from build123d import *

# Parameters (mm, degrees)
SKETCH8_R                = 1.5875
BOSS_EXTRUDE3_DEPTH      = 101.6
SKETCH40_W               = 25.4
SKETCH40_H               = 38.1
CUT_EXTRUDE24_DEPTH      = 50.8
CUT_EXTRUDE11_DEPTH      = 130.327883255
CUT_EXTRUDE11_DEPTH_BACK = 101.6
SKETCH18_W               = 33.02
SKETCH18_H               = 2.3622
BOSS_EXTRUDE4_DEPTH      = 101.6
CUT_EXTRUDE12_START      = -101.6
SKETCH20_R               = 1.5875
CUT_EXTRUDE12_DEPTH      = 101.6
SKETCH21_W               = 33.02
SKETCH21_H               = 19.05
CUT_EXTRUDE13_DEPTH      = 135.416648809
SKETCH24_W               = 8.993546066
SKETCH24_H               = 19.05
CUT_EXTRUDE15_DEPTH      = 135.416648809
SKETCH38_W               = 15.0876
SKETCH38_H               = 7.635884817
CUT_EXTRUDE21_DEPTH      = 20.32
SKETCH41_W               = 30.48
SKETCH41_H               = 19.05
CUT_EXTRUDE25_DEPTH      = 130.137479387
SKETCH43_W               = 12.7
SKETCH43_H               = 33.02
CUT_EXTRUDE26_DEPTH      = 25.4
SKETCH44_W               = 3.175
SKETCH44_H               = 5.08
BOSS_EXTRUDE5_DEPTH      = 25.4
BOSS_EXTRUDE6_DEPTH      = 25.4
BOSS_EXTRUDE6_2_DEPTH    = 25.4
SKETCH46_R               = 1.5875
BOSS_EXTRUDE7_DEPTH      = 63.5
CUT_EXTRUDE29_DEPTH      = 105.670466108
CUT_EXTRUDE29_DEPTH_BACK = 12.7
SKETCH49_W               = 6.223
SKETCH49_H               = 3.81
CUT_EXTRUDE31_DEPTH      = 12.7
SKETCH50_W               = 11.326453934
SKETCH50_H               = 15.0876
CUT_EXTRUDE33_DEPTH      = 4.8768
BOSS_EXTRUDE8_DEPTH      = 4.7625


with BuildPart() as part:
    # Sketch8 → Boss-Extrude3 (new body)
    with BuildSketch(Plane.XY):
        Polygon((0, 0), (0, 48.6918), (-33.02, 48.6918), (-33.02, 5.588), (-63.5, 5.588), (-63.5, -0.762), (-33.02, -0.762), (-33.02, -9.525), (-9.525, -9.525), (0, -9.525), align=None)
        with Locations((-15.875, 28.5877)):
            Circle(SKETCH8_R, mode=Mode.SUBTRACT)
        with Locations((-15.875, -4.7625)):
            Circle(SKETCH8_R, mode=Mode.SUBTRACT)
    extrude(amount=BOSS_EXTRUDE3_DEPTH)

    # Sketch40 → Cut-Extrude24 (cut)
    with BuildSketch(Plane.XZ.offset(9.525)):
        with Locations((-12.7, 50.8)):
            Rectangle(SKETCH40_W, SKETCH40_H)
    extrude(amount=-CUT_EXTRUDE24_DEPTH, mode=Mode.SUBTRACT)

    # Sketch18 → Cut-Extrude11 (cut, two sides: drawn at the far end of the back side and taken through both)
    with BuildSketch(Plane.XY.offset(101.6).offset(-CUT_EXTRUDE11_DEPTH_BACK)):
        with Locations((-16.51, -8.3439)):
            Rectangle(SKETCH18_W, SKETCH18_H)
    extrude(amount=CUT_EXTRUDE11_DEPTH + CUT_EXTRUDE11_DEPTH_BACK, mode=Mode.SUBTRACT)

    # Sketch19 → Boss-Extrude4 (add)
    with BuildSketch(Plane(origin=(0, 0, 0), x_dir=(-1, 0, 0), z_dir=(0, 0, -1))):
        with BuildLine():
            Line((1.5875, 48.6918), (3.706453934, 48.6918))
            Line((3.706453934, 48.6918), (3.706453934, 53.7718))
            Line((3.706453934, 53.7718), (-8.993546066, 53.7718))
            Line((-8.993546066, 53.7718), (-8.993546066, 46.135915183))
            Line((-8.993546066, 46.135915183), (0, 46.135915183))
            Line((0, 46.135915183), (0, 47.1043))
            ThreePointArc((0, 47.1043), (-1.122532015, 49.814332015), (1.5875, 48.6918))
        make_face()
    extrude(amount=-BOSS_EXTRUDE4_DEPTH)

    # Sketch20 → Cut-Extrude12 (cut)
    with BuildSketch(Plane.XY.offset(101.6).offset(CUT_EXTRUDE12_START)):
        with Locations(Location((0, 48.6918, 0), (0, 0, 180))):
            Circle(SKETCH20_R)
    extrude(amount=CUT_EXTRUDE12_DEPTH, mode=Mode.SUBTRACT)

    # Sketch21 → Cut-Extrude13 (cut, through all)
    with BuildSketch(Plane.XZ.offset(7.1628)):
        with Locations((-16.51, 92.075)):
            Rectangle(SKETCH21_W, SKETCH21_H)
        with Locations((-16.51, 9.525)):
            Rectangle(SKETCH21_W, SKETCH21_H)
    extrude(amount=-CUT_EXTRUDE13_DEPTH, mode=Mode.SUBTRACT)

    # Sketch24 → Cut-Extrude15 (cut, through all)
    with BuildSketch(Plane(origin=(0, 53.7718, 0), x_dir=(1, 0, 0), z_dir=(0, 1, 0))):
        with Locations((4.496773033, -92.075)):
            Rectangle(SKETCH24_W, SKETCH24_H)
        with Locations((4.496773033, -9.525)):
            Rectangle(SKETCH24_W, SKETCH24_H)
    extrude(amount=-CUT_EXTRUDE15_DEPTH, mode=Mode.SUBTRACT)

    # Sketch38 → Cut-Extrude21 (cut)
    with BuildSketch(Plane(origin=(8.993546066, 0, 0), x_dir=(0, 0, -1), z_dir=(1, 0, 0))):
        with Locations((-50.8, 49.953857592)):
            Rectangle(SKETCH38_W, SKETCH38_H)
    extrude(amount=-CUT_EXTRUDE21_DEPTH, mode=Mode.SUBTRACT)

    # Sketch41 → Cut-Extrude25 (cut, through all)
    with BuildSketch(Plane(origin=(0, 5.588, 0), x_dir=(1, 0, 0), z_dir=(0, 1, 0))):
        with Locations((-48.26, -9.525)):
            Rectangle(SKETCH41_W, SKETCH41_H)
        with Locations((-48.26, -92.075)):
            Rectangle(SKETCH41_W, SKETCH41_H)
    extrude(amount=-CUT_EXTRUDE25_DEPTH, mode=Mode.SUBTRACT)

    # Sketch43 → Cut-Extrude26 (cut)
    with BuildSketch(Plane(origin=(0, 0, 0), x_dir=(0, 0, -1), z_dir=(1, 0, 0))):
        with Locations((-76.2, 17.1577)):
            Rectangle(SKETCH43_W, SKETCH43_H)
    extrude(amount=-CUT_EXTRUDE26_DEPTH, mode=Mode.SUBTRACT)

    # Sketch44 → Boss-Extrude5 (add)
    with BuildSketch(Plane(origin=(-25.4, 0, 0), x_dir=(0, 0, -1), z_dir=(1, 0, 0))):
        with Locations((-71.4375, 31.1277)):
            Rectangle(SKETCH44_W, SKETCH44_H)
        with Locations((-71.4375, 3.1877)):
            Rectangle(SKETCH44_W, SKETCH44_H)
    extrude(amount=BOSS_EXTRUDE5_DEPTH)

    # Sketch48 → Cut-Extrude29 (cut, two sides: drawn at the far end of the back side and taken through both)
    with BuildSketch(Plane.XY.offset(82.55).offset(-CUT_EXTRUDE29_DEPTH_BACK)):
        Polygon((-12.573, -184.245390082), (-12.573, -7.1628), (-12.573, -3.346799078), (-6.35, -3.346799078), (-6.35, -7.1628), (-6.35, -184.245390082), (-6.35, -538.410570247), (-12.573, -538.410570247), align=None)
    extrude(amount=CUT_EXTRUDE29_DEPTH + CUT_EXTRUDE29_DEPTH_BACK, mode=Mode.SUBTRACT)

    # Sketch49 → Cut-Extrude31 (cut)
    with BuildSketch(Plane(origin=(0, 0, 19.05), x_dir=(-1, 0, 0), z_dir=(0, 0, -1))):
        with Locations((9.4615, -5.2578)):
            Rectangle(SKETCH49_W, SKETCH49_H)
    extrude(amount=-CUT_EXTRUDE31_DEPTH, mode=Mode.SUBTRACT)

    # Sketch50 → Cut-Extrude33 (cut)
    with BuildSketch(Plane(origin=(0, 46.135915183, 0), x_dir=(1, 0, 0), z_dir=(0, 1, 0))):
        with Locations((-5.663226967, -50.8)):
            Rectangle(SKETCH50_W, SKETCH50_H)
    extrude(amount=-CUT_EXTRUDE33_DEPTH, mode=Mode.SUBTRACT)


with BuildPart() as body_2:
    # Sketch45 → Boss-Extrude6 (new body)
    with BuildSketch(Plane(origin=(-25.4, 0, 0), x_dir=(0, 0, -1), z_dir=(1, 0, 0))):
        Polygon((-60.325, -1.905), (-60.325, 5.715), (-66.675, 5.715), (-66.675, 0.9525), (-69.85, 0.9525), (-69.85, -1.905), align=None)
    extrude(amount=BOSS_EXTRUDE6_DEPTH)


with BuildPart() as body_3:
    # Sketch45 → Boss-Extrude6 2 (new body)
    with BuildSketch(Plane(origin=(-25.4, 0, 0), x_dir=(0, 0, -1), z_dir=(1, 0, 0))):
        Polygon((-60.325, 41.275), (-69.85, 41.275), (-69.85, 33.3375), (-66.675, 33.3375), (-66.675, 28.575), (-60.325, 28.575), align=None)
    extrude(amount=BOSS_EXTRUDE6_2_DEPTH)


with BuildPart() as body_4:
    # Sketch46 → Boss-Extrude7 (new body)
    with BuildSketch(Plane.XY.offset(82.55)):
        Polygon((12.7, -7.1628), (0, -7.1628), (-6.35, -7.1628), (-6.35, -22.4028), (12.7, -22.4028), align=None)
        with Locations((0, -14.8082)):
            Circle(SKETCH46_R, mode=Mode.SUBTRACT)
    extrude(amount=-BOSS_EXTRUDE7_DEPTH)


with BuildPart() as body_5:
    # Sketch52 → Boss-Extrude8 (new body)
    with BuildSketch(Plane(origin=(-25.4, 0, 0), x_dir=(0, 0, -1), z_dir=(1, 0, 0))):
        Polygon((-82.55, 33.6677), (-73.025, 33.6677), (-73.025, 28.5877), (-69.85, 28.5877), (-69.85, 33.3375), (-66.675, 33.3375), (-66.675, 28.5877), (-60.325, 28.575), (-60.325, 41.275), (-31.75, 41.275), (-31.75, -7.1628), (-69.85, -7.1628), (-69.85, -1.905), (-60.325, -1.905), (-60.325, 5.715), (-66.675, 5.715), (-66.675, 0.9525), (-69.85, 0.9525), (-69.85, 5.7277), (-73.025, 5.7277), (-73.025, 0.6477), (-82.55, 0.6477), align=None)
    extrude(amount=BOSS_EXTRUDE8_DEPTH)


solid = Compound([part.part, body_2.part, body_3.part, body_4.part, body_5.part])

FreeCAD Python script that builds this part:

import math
import FreeCAD as App
import Part
import Sketcher

V = App.Vector
Q = App.Units.Quantity


def add_polygon(sketch, points):
    """Adds a closed chain of lines whose ends are joined by coincident constraints."""
    first, n = sketch.GeometryCount, len(points)
    for a, b in zip(points, points[1:] + points[:1]):
        sketch.addGeometry(Part.LineSegment(App.Vector(*a, 0), App.Vector(*b, 0)), False)
    for i in range(n):
        sketch.addConstraint(Sketcher.Constraint("Coincident", first + i, 2, first + (i + 1) % n, 1))

doc = App.newDocument("Part")
body = doc.addObject("PartDesign::Body", "Body")

# Sketch on XY plane
sketch1 = body.newObject("Sketcher::SketchObject", "Sketch")
sketch1.AttachmentSupport = (doc.getObject("XY_Plane"), [""])
sketch1.MapMode = "FlatFace"
add_polygon(sketch1, [(0, 48.6918), (-33.02, 48.6918), (-33.02, 5.588), (-63.5, 5.588), (-63.5, -0.762), (-33.02, -0.762), (-33.02, -9.525), (0, -9.525)])  # lines 0-7
sketch1.addGeometry(Part.Circle(V(-15.875, -4.7625, 0), V(0, 0, 1), 1.5875), False)  # 8
sketch1.addGeometry(Part.Circle(V(-15.875, 28.5877, 0), V(0, 0, 1), 1.5875), False)  # 9
sketch1.addConstraint(Sketcher.Constraint("Horizontal", 0))
sketch1.addConstraint(Sketcher.Constraint("Vertical", 1))
sketch1.addConstraint(Sketcher.Constraint("Horizontal", 2))
sketch1.addConstraint(Sketcher.Constraint("Vertical", 3))
sketch1.addConstraint(Sketcher.Constraint("Horizontal", 4))
sketch1.addConstraint(Sketcher.Constraint("Vertical", 5))
sketch1.addConstraint(Sketcher.Constraint("Horizontal", 6))
sketch1.addConstraint(Sketcher.Constraint("Vertical", 7))
sketch1.addConstraint(Sketcher.Constraint("Equal", 8, 9))
sketch1.addConstraint(Sketcher.Constraint("PointOnObject", 6, 2, -2))
sketch1.addConstraint(Sketcher.Constraint("Vertical", 8, 3, 9, 3))
sketch1.addConstraint(Sketcher.Constraint("Vertical", 1, 2, 4, 2))
sketch1.addConstraint(Sketcher.Constraint("Diameter", 8, Q("0.125 in")))
sketch1.addConstraint(Sketcher.Constraint("DistanceX", 0, 2, 0, 1, Q("1.3 in")))
sketch1.addConstraint(Sketcher.Constraint("DistanceX", 2, 2, 2, 1, Q("1.2 in")))
sketch1.addConstraint(Sketcher.Constraint("DistanceY", 3, 2, 3, 1, Q("0.25 in")))
sketch1.addConstraint(Sketcher.Constraint("DistanceY", 1, 2, 1, 1, Q("1.697 in")))
sketch1.addConstraint(Sketcher.Constraint("DistanceY", 5, 2, 5, 1, Q("0.345 in")))
sketch1.addConstraint(Sketcher.Constraint("DistanceY", -1, 1, 1, 2, Q("0.22 in")))
sketch1.addConstraint(Sketcher.Constraint("DistanceX", 8, 3, -1, 1, Q("0.625 in")))
sketch1.addConstraint(Sketcher.Constraint("DistanceY", 8, 3, -1, 1, Q("0.1875 in")))
sketch1.addConstraint(Sketcher.Constraint("DistanceY", 8, 3, 9, 3, Q("1.313 in")))
pad1 = body.newObject("PartDesign::Pad", "Pad")
pad1.Profile = sketch1
pad1.Length = Q("4 in")

# Sketch on XZ plane
sketch2 = body.newObject("Sketcher::SketchObject", "Sketch001")
sketch2.AttachmentSupport = (doc.getObject("XZ_Plane"), [""])
sketch2.MapMode = "FlatFace"
sketch2.AttachmentOffset = App.Placement(V(0, 0, 0.375 * 25.4), App.Rotation())
add_polygon(sketch2, [(-25.4, 69.85), (-25.4, 31.75), (0, 31.75), (0, 69.85)])  # lines 0-3
sketch2.addConstraint(Sketcher.Constraint("Vertical", 0))
sketch2.addConstraint(Sketcher.Constraint("Horizontal", 1))
sketch2.addConstraint(Sketcher.Constraint("Vertical", 2))
sketch2.addConstraint(Sketcher.Constraint("Horizontal", 3))
sketch2.addConstraint(Sketcher.Constraint("PointOnObject", 1, 2, -2))
sketch2.addConstraint(Sketcher.Constraint("DistanceX", 1, 1, 1, 2, Q("1 in")))
sketch2.addConstraint(Sketcher.Constraint("DistanceY", 0, 2, 0, 1, Q("1.5 in")))
sketch2.addConstraint(Sketcher.Constraint("DistanceY", -1, 1, 0, 2, Q("1.25 in")))
pocket1 = body.newObject("PartDesign::Pocket", "Pocket")
pocket1.Profile = sketch2
pocket1.Length = Q("2 in")

# Sketch on XY plane
sketch3 = body.newObject("Sketcher::SketchObject", "Sketch002")
sketch3.AttachmentSupport = (doc.getObject("XY_Plane"), [""])
sketch3.MapMode = "FlatFace"
sketch3.AttachmentOffset = App.Placement(V(0, 0, 4 * 25.4), App.Rotation())
add_polygon(sketch3, [(-33.02, -7.1628), (-33.02, -9.525), (0, -9.525), (0, -7.1628)])  # lines 0-3
sketch3.addConstraint(Sketcher.Constraint("Vertical", 0))
sketch3.addConstraint(Sketcher.Constraint("Horizontal", 1))
sketch3.addConstraint(Sketcher.Constraint("Vertical", 2))
sketch3.addConstraint(Sketcher.Constraint("Horizontal", 3))
sketch3.addConstraint(Sketcher.Constraint("PointOnObject", 1, 2, -2))
sketch3.addConstraint(Sketcher.Constraint("DistanceX", 1, 1, 1, 2, Q("1.3 in")))
sketch3.addConstraint(Sketcher.Constraint("DistanceY", 0, 2, 0, 1, Q("0.093 in")))
sketch3.addConstraint(Sketcher.Constraint("DistanceY", 0, 2, -1, 1, Q("0.375 in")))
pocket2 = body.newObject("PartDesign::Pocket", "Pocket001")
pocket2.Profile = sketch3
pocket2.Type = "ThroughAll"
pocket2.Midplane = True

# Sketch on XY plane
sketch4 = body.newObject("Sketcher::SketchObject", "Sketch003")
sketch4.AttachmentSupport = (doc.getObject("XY_Plane"), [""])
sketch4.MapMode = "FlatFace"
sketch4.addGeometry(Part.LineSegment(V(-1.5875, 48.6918, 0), V(-3.706454, 48.6918, 0)), False)
sketch4.addGeometry(Part.LineSegment(V(-3.706454, 48.6918, 0), V(-3.706454, 53.7718, 0)), False)
sketch4.addGeometry(Part.LineSegment(V(-3.706454, 53.7718, 0), V(8.993546, 53.7718, 0)), False)
sketch4.addGeometry(Part.LineSegment(V(8.993546, 53.7718, 0), V(8.993546, 46.135915, 0)), False)
sketch4.addGeometry(Part.LineSegment(V(8.993546, 46.135915, 0), V(0, 46.135915, 0)), False)
sketch4.addGeometry(Part.LineSegment(V(0, 46.135915, 0), V(0, 47.1043, 0)), False)
sketch4.addGeometry(Part.ArcOfCircle(Part.Circle(V(0, 48.6918, 0), V(0, 0, 1), 1.5875), math.radians(-90), math.radians(180)), False)
sketch4.addConstraint(Sketcher.Constraint("Coincident", 0, 2, 1, 1))
sketch4.addConstraint(Sketcher.Constraint("Coincident", 1, 2, 2, 1))
sketch4.addConstraint(Sketcher.Constraint("Coincident", 2, 2, 3, 1))
sketch4.addConstraint(Sketcher.Constraint("Coincident", 3, 2, 4, 1))
sketch4.addConstraint(Sketcher.Constraint("Coincident", 4, 2, 5, 1))
sketch4.addConstraint(Sketcher.Constraint("Coincident", 5, 2, 6, 1))
sketch4.addConstraint(Sketcher.Constraint("Coincident", 6, 2, 0, 1))
sketch4.addConstraint(Sketcher.Constraint("Horizontal", 0))
sketch4.addConstraint(Sketcher.Constraint("Vertical", 1))
sketch4.addConstraint(Sketcher.Constraint("Horizontal", 2))
sketch4.addConstraint(Sketcher.Constraint("Vertical", 3))
sketch4.addConstraint(Sketcher.Constraint("Horizontal", 4))
sketch4.addConstraint(Sketcher.Constraint("Vertical", 5))
sketch4.addConstraint(Sketcher.Constraint("PointOnObject", 6, 3, -2))
sketch4.addConstraint(Sketcher.Constraint("PointOnObject", 4, 2, -2))
sketch4.addConstraint(Sketcher.Constraint("Horizontal", 6, 3, 0, 2))
sketch4.addConstraint(Sketcher.Constraint("DistanceX", 2, 1, 2, 2, Q("0.5 in")))
sketch4.addConstraint(Sketcher.Constraint("DistanceY", 1, 1, 1, 2, Q("0.2 in")))
sketch4.addConstraint(Sketcher.Constraint("Radius", 6, Q("0.0625 in")))
sketch4.addConstraint(Sketcher.Constraint("DistanceY", -1, 1, 6, 3, Q("1.917 in")))
sketch4.addConstraint(Sketcher.Constraint("DistanceX", 0, 2, 0, 1, 2.118954))
sketch4.addConstraint(Sketcher.Constraint("DistanceY", 3, 2, 3, 1, 7.635885))
pad2 = body.newObject("PartDesign::Pad", "Pad001")
pad2.Profile = sketch4
pad2.Length = Q("4 in")

# Sketch on XY plane
sketch5 = body.newObject("Sketcher::SketchObject", "Sketch004")
sketch5.AttachmentSupport = (doc.getObject("XY_Plane"), [""])
sketch5.MapMode = "FlatFace"
sketch5.addGeometry(Part.Circle(V(0, 48.6918, 0), V(0, 0, 1), 1.5875), False)
sketch5.addConstraint(Sketcher.Constraint("PointOnObject", 0, 3, -2))
sketch5.addConstraint(Sketcher.Constraint("Diameter", 0, Q("0.125 in")))
sketch5.addConstraint(Sketcher.Constraint("DistanceY", -1, 1, 0, 3, Q("1.917 in")))
pocket3 = body.newObject("PartDesign::Pocket", "Pocket002")
pocket3.Profile = sketch5
pocket3.Length = Q("4 in")
pocket3.Reversed = True

# Sketch on XZ plane
sketch6 = body.newObject("Sketcher::SketchObject", "Sketch005")
sketch6.AttachmentSupport = (doc.getObject("XZ_Plane"), [""])
sketch6.MapMode = "FlatFace"
sketch6.AttachmentOffset = App.Placement(V(0, 0, 0.282 * 25.4), App.Rotation())
add_polygon(sketch6, [(-33.02, 101.6), (-33.02, 82.55), (0, 82.55), (0, 101.6)])  # lines 0-3
add_polygon(sketch6, [(-33.02, 19.05), (-33.02, 0), (0, 0), (0, 19.05)])  # lines 4-7
sketch6.addConstraint(Sketcher.Constraint("Vertical", 0))
sketch6.addConstraint(Sketcher.Constraint("Horizontal", 1))
sketch6.addConstraint(Sketcher.Constraint("Vertical", 2))
sketch6.addConstraint(Sketcher.Constraint("Horizontal", 3))
sketch6.addConstraint(Sketcher.Constraint("Vertical", 4))
sketch6.addConstraint(Sketcher.Constraint("Horizontal", 5))
sketch6.addConstraint(Sketcher.Constraint("Vertical", 6))
sketch6.addConstraint(Sketcher.Constraint("Horizontal", 7))
sketch6.addConstraint(Sketcher.Constraint("Coincident", 5, 2, -1, 1))
sketch6.addConstraint(Sketcher.Constraint("PointOnObject", 1, 2, -2))
sketch6.addConstraint(Sketcher.Constraint("Vertical", 3, 2, 4, 2))
sketch6.addConstraint(Sketcher.Constraint("Equal", 2, 4))
sketch6.addConstraint(Sketcher.Constraint("DistanceX", 1, 1, 1, 2, Q("1.3 in")))
sketch6.addConstraint(Sketcher.Constraint("DistanceY", -1, 1, 2, 2, Q("4 in")))
sketch6.addConstraint(Sketcher.Constraint("DistanceY", 0, 2, 0, 1, Q("0.75 in")))
pocket4 = body.newObject("PartDesign::Pocket", "Pocket003")
pocket4.Profile = sketch6
pocket4.Type = "ThroughAll"

# Sketch on XZ plane
sketch7 = body.newObject("Sketcher::SketchObject", "Sketch006")
sketch7.AttachmentSupport = (doc.getObject("XZ_Plane"), [""])
sketch7.MapMode = "FlatFace"
sketch7.AttachmentOffset = App.Placement(V(0, 0, -2.117 * 25.4), App.Rotation())
add_polygon(sketch7, [(0, 82.55), (0, 101.6), (8.993546, 101.6), (8.993546, 82.55)])  # lines 0-3
add_polygon(sketch7, [(0, 0), (0, 19.05), (8.993546, 19.05), (8.993546, 0)])  # lines 4-7
sketch7.addConstraint(Sketcher.Constraint("Vertical", 0))
sketch7.addConstraint(Sketcher.Constraint("Horizontal", 1))
sketch7.addConstraint(Sketcher.Constraint("Vertical", 2))
sketch7.addConstraint(Sketcher.Constraint("Horizontal", 3))
sketch7.addConstraint(Sketcher.Constraint("Vertical", 4))
sketch7.addConstraint(Sketcher.Constraint("Horizontal", 5))
sketch7.addConstraint(Sketcher.Constraint("Vertical", 6))
sketch7.addConstraint(Sketcher.Constraint("Horizontal", 7))
sketch7.addConstraint(Sketcher.Constraint("Coincident", 7, 2, -1, 1))
sketch7.addConstraint(Sketcher.Constraint("PointOnObject", 0, 2, -2))
sketch7.addConstraint(Sketcher.Constraint("Vertical", 2, 2, 5, 2))
sketch7.addConstraint(Sketcher.Constraint("Equal", 2, 4))
sketch7.addConstraint(Sketcher.Constraint("DistanceY", -1, 1, 0, 2, Q("4 in")))
sketch7.addConstraint(Sketcher.Constraint("DistanceY", 0, 1, 0, 2, Q("0.75 in")))
sketch7.addConstraint(Sketcher.Constraint("DistanceX", 1, 1, 1, 2, 8.993546))
pocket5 = body.newObject("PartDesign::Pocket", "Pocket004")
pocket5.Profile = sketch7
pocket5.Type = "ThroughAll"
pocket5.Reversed = True

# Sketch on YZ plane
sketch8 = body.newObject("Sketcher::SketchObject", "Sketch007")
sketch8.AttachmentSupport = (doc.getObject("YZ_Plane"), [""])
sketch8.MapMode = "FlatFace"
sketch8.AttachmentOffset = App.Placement(V(0, 0, 8.993546), App.Rotation())
add_polygon(sketch8, [(53.7718, 58.3438), (46.135915, 58.3438), (46.135915, 43.2562), (53.7718, 43.2562)])  # lines 0-3
sketch8.addConstraint(Sketcher.Constraint("Horizontal", 0))
sketch8.addConstraint(Sketcher.Constraint("Vertical", 1))
sketch8.addConstraint(Sketcher.Constraint("Horizontal", 2))
sketch8.addConstraint(Sketcher.Constraint("Vertical", 3))
sketch8.addConstraint(Sketcher.Constraint("DistanceY", 1, 2, 1, 1, Q("0.594 in")))
sketch8.addConstraint(Sketcher.Constraint("DistanceY", -1, 1, 0, 2, Q("2.297 in")))
sketch8.addConstraint(Sketcher.Constraint("DistanceX", -1, 1, 2, 2, Q("2.117 in")))
sketch8.addConstraint(Sketcher.Constraint("DistanceX", 0, 2, 0, 1, 7.635885))
pocket6 = body.newObject("PartDesign::Pocket", "Pocket005")
pocket6.Profile = sketch8
pocket6.Length = Q("0.8 in")

# Sketch on XZ plane
sketch9 = body.newObject("Sketcher::SketchObject", "Sketch008")
sketch9.AttachmentSupport = (doc.getObject("XZ_Plane"), [""])
sketch9.MapMode = "FlatFace"
sketch9.AttachmentOffset = App.Placement(V(0, 0, -0.22 * 25.4), App.Rotation())
add_polygon(sketch9, [(-63.5, 0), (-63.5, 19.05), (-33.02, 19.05), (-33.02, 0)])  # lines 0-3
add_polygon(sketch9, [(-63.5, 82.55), (-63.5, 101.6), (-33.02, 101.6), (-33.02, 82.55)])  # lines 4-7
sketch9.addConstraint(Sketcher.Constraint("Vertical", 0))
sketch9.addConstraint(Sketcher.Constraint("Horizontal", 1))
sketch9.addConstraint(Sketcher.Constraint("Vertical", 2))
sketch9.addConstraint(Sketcher.Constraint("Horizontal", 3))
sketch9.addConstraint(Sketcher.Constraint("Vertical", 4))
sketch9.addConstraint(Sketcher.Constraint("Horizontal", 5))
sketch9.addConstraint(Sketcher.Constraint("Vertical", 6))
sketch9.addConstraint(Sketcher.Constraint("Horizontal", 7))
sketch9.addConstraint(Sketcher.Constraint("PointOnObject", 2, 2, -1))
sketch9.addConstraint(Sketcher.Constraint("Vertical", 3, 2, 4, 2))
sketch9.addConstraint(Sketcher.Constraint("Vertical", 2, 2, 5, 2))
sketch9.addConstraint(Sketcher.Constraint("Equal", 2, 4))
sketch9.addConstraint(Sketcher.Constraint("DistanceX", 1, 1, 1, 2, Q("1.2 in")))
sketch9.addConstraint(Sketcher.Constraint("DistanceY", -1, 1, 4, 2, Q("4 in")))
sketch9.addConstraint(Sketcher.Constraint("DistanceY", 0, 1, 0, 2, Q("0.75 in")))
sketch9.addConstraint(Sketcher.Constraint("DistanceX", 0, 2, -1, 1, Q("2.5 in")))
pocket7 = body.newObject("PartDesign::Pocket", "Pocket006")
pocket7.Profile = sketch9
pocket7.Type = "ThroughAll"
pocket7.Reversed = True

# Sketch on YZ plane
sketch10 = body.newObject("Sketcher::SketchObject", "Sketch009")
sketch10.AttachmentSupport = (doc.getObject("YZ_Plane"), [""])
sketch10.MapMode = "FlatFace"
add_polygon(sketch10, [(33.6677, 82.55), (0.6477, 82.55), (0.6477, 69.85), (33.6677, 69.85)])  # lines 0-3
sketch10.addConstraint(Sketcher.Constraint("Horizontal", 0))
sketch10.addConstraint(Sketcher.Constraint("Vertical", 1))
sketch10.addConstraint(Sketcher.Constraint("Horizontal", 2))
sketch10.addConstraint(Sketcher.Constraint("Vertical", 3))
sketch10.addConstraint(Sketcher.Constraint("DistanceX", 0, 2, 0, 1, Q("1.3 in")))
sketch10.addConstraint(Sketcher.Constraint("DistanceY", 1, 2, 1, 1, Q("0.5 in")))
sketch10.addConstraint(Sketcher.Constraint("DistanceY", -1, 1, 0, 2, Q("3.25 in")))
sketch10.addConstraint(Sketcher.Constraint("DistanceX", -1, 1, 0, 2, Q("0.0255 in")))
pocket8 = body.newObject("PartDesign::Pocket", "Pocket007")
pocket8.Profile = sketch10
pocket8.Length = Q("1 in")

# Sketch on YZ plane
sketch11 = body.newObject("Sketcher::SketchObject", "Sketch010")
sketch11.AttachmentSupport = (doc.getObject("YZ_Plane"), [""])
sketch11.MapMode = "FlatFace"
sketch11.AttachmentOffset = App.Placement(V(0, 0, -1 * 25.4), App.Rotation())
add_polygon(sketch11, [(33.6677, 73.025), (28.5877, 73.025), (28.5877, 69.85), (33.6677, 69.85)])  # lines 0-3
add_polygon(sketch11, [(5.7277, 73.025), (0.6477, 73.025), (0.6477, 69.85), (5.7277, 69.85)])  # lines 4-7
sketch11.addConstraint(Sketcher.Constraint("Horizontal", 0))
sketch11.addConstraint(Sketcher.Constraint("Vertical", 1))
sketch11.addConstraint(Sketcher.Constraint("Horizontal", 2))
sketch11.addConstraint(Sketcher.Constraint("Vertical", 3))
sketch11.addConstraint(Sketcher.Constraint("Horizontal", 4))
sketch11.addConstraint(Sketcher.Constraint("Vertical", 5))
sketch11.addConstraint(Sketcher.Constraint("Horizontal", 6))
sketch11.addConstraint(Sketcher.Constraint("Vertical", 7))
sketch11.addConstraint(Sketcher.Constraint("Horizontal", 3, 2, 4, 2))
sketch11.addConstraint(Sketcher.Constraint("Horizontal", 2, 2, 5, 2))
sketch11.addConstraint(Sketcher.Constraint("Equal", 2, 4))
sketch11.addConstraint(Sketcher.Constraint("DistanceX", 0, 2, 0, 1, Q("0.2 in")))
sketch11.addConstraint(Sketcher.Constraint("DistanceX", 4, 2, 0, 2, Q("1.1 in")))
sketch11.addConstraint(Sketcher.Constraint("DistanceY", 1, 2, 1, 1, Q("0.125 in")))
sketch11.addConstraint(Sketcher.Constraint("DistanceY", -1, 1, 1, 2, Q("2.75 in")))
sketch11.addConstraint(Sketcher.Constraint("DistanceX", -1, 1, 0, 2, Q("1.1255 in")))
pad3 = body.newObject("PartDesign::Pad", "Pad002")
pad3.Profile = sketch11
pad3.Length = Q("1 in")

# Sketch on XY plane
sketch12 = body.newObject("Sketcher::SketchObject", "Sketch011")
sketch12.AttachmentSupport = (doc.getObject("XY_Plane"), [""])
sketch12.MapMode = "FlatFace"
sketch12.AttachmentOffset = App.Placement(V(0, 0, 3.25 * 25.4), App.Rotation())
add_polygon(sketch12, [(-12.573, -3.346799), (-12.573, -538.41057), (-6.35, -538.41057), (-6.35, -3.346799)])  # lines 0-3
sketch12.addConstraint(Sketcher.Constraint("Vertical", 0))
sketch12.addConstraint(Sketcher.Constraint("Horizontal", 1))
sketch12.addConstraint(Sketcher.Constraint("Vertical", 2))
sketch12.addConstraint(Sketcher.Constraint("Horizontal", 3))
sketch12.addConstraint(Sketcher.Constraint("DistanceX", 1, 1, 1, 2, Q("0.245 in")))
sketch12.addConstraint(Sketcher.Constraint("DistanceX", 1, 2, -1, 1, Q("0.25 in")))
sketch12.addConstraint(Sketcher.Constraint("DistanceY", 0, 2, 0, 1, 535.063771))
sketch12.addConstraint(Sketcher.Constraint("DistanceY", 2, 2, -1, 1, 3.346799))
pocket9 = body.newObject("PartDesign::Pocket", "Pocket008")
pocket9.Profile = sketch12
pocket9.Type = "TwoLengths"
pocket9.Length = 105.670466
pocket9.Length2 = Q("0.5 in")
pocket9.Reversed = True

# Sketch on XY plane
sketch13 = body.newObject("Sketcher::SketchObject", "Sketch012")
sketch13.AttachmentSupport = (doc.getObject("XY_Plane"), [""])
sketch13.MapMode = "FlatFace"
sketch13.AttachmentOffset = App.Placement(V(0, 0, 0.75 * 25.4), App.Rotation())
add_polygon(sketch13, [(-6.35, -3.3528), (-6.35, -7.1628), (-12.573, -7.1628), (-12.573, -3.3528)])  # lines 0-3
sketch13.addConstraint(Sketcher.Constraint("Vertical", 0))
sketch13.addConstraint(Sketcher.Constraint("Horizontal", 1))
sketch13.addConstraint(Sketcher.Constraint("Vertical", 2))
sketch13.addConstraint(Sketcher.Constraint("Horizontal", 3))
sketch13.addConstraint(Sketcher.Constraint("DistanceY", 0, 2, 0, 1, Q("0.15 in")))
sketch13.addConstraint(Sketcher.Constraint("DistanceX", 1, 2, 1, 1, Q("0.245 in")))
sketch13.addConstraint(Sketcher.Constraint("DistanceX", 0, 2, -1, 1, Q("0.25 in")))
sketch13.addConstraint(Sketcher.Constraint("DistanceY", 0, 2, -1, 1, Q("0.282 in")))
pocket10 = body.newObject("PartDesign::Pocket", "Pocket009")
pocket10.Profile = sketch13
pocket10.Length = Q("0.5 in")
pocket10.Reversed = True

# Sketch on XZ plane
sketch14 = body.newObject("Sketcher::SketchObject", "Sketch013")
sketch14.AttachmentSupport = (doc.getObject("XZ_Plane"), [""])
sketch14.MapMode = "FlatFace"
sketch14.AttachmentOffset = App.Placement(V(0, 0, -46.135915), App.Rotation())
add_polygon(sketch14, [(-11.326454, 43.2562), (-11.326454, 58.3438), (0, 58.3438), (0, 43.2562)])  # lines 0-3
sketch14.addConstraint(Sketcher.Constraint("Vertical", 0))
sketch14.addConstraint(Sketcher.Constraint("Horizontal", 1))
sketch14.addConstraint(Sketcher.Constraint("Vertical", 2))
sketch14.addConstraint(Sketcher.Constraint("Horizontal", 3))
sketch14.addConstraint(Sketcher.Constraint("PointOnObject", 1, 2, -2))
sketch14.addConstraint(Sketcher.Constraint("DistanceY", 0, 1, 0, 2, Q("0.594 in")))
sketch14.addConstraint(Sketcher.Constraint("DistanceY", -1, 1, 0, 2, Q("2.297 in")))
sketch14.addConstraint(Sketcher.Constraint("DistanceX", 1, 1, 1, 2, 11.326454))
pocket11 = body.newObject("PartDesign::Pocket", "Pocket010")
pocket11.Profile = sketch14
pocket11.Length = Q("0.192 in")
pocket11.Reversed = True
body2 = doc.addObject("PartDesign::Body", "Body001")

# Sketch on YZ plane
sketch15 = body2.newObject("Sketcher::SketchObject", "Sketch014")
sketch15.AttachmentSupport = (doc.getObject("YZ_Plane001"), [""])
sketch15.MapMode = "FlatFace"
sketch15.AttachmentOffset = App.Placement(V(0, 0, -1 * 25.4), App.Rotation())
add_polygon(sketch15, [(-1.905, 60.325), (5.715, 60.325), (5.715, 66.675), (0.9525, 66.675), (0.9525, 69.85), (-1.905, 69.85)])  # lines 0-5
sketch15.addConstraint(Sketcher.Constraint("Horizontal", 0))
sketch15.addConstraint(Sketcher.Constraint("Vertical", 1))
sketch15.addConstraint(Sketcher.Constraint("Horizontal", 2))
sketch15.addConstraint(Sketcher.Constraint("Vertical", 3))
sketch15.addConstraint(Sketcher.Constraint("Horizontal", 4))
sketch15.addConstraint(Sketcher.Constraint("Vertical", 5))
sketch15.addConstraint(Sketcher.Constraint("DistanceX", 0, 1, 0, 2, Q("0.3 in")))
sketch15.addConstraint(Sketcher.Constraint("DistanceY", 1, 1, 1, 2, Q("0.25 in")))
sketch15.addConstraint(Sketcher.Constraint("DistanceX", 2, 2, 2, 1, Q("0.1875 in")))
sketch15.addConstraint(Sketcher.Constraint("DistanceY", 3, 1, 3, 2, Q("0.125 in")))
sketch15.addConstraint(Sketcher.Constraint("DistanceY", -1, 1, 3, 2, Q("2.75 in")))
sketch15.addConstraint(Sketcher.Constraint("DistanceX", -1, 1, 0, 2, Q("0.225 in")))
pad4 = body2.newObject("PartDesign::Pad", "Pad003")
pad4.Profile = sketch15
pad4.Length = Q("1 in")
body3 = doc.addObject("PartDesign::Body", "Body002")

# Sketch on YZ plane
sketch16 = body3.newObject("Sketcher::SketchObject", "Sketch015")
sketch16.AttachmentSupport = (doc.getObject("YZ_Plane002"), [""])
sketch16.MapMode = "FlatFace"
sketch16.AttachmentOffset = App.Placement(V(0, 0, -1 * 25.4), App.Rotation())
add_polygon(sketch16, [(41.275, 60.325), (41.275, 69.85), (33.3375, 69.85), (33.3375, 66.675), (28.575, 66.675), (28.575, 60.325)])  # lines 0-5
sketch16.addConstraint(Sketcher.Constraint("Vertical", 0))
sketch16.addConstraint(Sketcher.Constraint("Horizontal", 1))
sketch16.addConstraint(Sketcher.Constraint("Vertical", 2))
sketch16.addConstraint(Sketcher.Constraint("Horizontal", 3))
sketch16.addConstraint(Sketcher.Constraint("Vertical", 4))
sketch16.addConstraint(Sketcher.Constraint("Horizontal", 5))
sketch16.addConstraint(Sketcher.Constraint("DistanceX", 5, 1, 5, 2, Q("0.5 in")))
sketch16.addConstraint(Sketcher.Constraint("DistanceY", 4, 2, 4, 1, Q("0.25 in")))
sketch16.addConstraint(Sketcher.Constraint("DistanceX", 1, 2, 1, 1, Q("0.3125 in")))
sketch16.addConstraint(Sketcher.Constraint("DistanceY", 0, 1, 0, 2, Q("0.375 in")))
sketch16.addConstraint(Sketcher.Constraint("DistanceY", -1, 1, 0, 2, Q("2.75 in")))
sketch16.addConstraint(Sketcher.Constraint("DistanceX", -1, 1, 0, 2, Q("1.625 in")))
pad5 = body3.newObject("PartDesign::Pad", "Pad004")
pad5.Profile = sketch16
pad5.Length = Q("1 in")
body4 = doc.addObject("PartDesign::Body", "Body003")

# Sketch on XY plane
sketch17 = body4.newObject("Sketcher::SketchObject", "Sketch016")
sketch17.AttachmentSupport = (doc.getObject("XY_Plane003"), [""])
sketch17.MapMode = "FlatFace"
sketch17.AttachmentOffset = App.Placement(V(0, 0, 3.25 * 25.4), App.Rotation())
add_polygon(sketch17, [(12.7, -7.1628), (-6.35, -7.1628), (-6.35, -22.4028), (12.7, -22.4028)])  # lines 0-3
sketch17.addGeometry(Part.Circle(V(0, -14.8082, 0), V(0, 0, 1), 1.5875), False)  # 4
sketch17.addConstraint(Sketcher.Constraint("Horizontal", 0))
sketch17.addConstraint(Sketcher.Constraint("Vertical", 1))
sketch17.addConstraint(Sketcher.Constraint("Horizontal", 2))
sketch17.addConstraint(Sketcher.Constraint("Vertical", 3))
sketch17.addConstraint(Sketcher.Constraint("PointOnObject", 4, 3, -2))
sketch17.addConstraint(Sketcher.Constraint("Diameter", 4, Q("0.125 in")))
sketch17.addConstraint(Sketcher.Constraint("DistanceY", 1, 2, 1, 1, Q("0.6 in")))
sketch17.addConstraint(Sketcher.Constraint("DistanceX", 0, 2, 0, 1, Q("0.75 in")))
sketch17.addConstraint(Sketcher.Constraint("DistanceX", -1, 1, 2, 2, Q("0.5 in")))
sketch17.addConstraint(Sketcher.Constraint("DistanceY", 4, 3, -1, 1, Q("0.583 in")))
sketch17.addConstraint(Sketcher.Constraint("DistanceY", 0, 2, -1, 1, Q("0.282 in")))
pad6 = body4.newObject("PartDesign::Pad", "Pad005")
pad6.Profile = sketch17
pad6.Length = Q("2.5 in")
pad6.Reversed = True
body5 = doc.addObject("PartDesign::Body", "Body004")

# Sketch on YZ plane
sketch18 = body5.newObject("Sketcher::SketchObject", "Sketch017")
sketch18.AttachmentSupport = (doc.getObject("YZ_Plane004"), [""])
sketch18.MapMode = "FlatFace"
sketch18.AttachmentOffset = App.Placement(V(0, 0, -1 * 25.4), App.Rotation())
add_polygon(sketch18, [(33.6677, 73.025), (33.6677, 82.55), (0.6477, 82.55), (0.6477, 73.025), (5.7277, 73.025), (5.7277, 69.85), (0.9525, 69.85), (0.9525, 66.675), (5.715, 66.675), (5.715, 60.325), (-1.905, 60.325), (-1.905, 69.85), (-7.1628, 69.85), (-7.1628, 31.75), (41.275, 31.75), (41.275, 60.325), (28.575, 60.325), (28.5877, 66.675), (33.3375, 66.675), (33.3375, 69.85), (28.5877, 69.85), (28.5877, 73.025)])  # lines 0-21
sketch18.addConstraint(Sketcher.Constraint("Vertical", 0))
sketch18.addConstraint(Sketcher.Constraint("Horizontal", 1))
sketch18.addConstraint(Sketcher.Constraint("Vertical", 2))
sketch18.addConstraint(Sketcher.Constraint("Horizontal", 3))
sketch18.addConstraint(Sketcher.Constraint("Vertical", 4))
sketch18.addConstraint(Sketcher.Constraint("Horizontal", 5))
sketch18.addConstraint(Sketcher.Constraint("Vertical", 6))
sketch18.addConstraint(Sketcher.Constraint("Horizontal", 7))
sketch18.addConstraint(Sketcher.Constraint("Vertical", 8))
sketch18.addConstraint(Sketcher.Constraint("Horizontal", 9))
sketch18.addConstraint(Sketcher.Constraint("Vertical", 10))
sketch18.addConstraint(Sketcher.Constraint("Horizontal", 11))
sketch18.addConstraint(Sketcher.Constraint("Vertical", 12))
sketch18.addConstraint(Sketcher.Constraint("Horizontal", 13))
sketch18.addConstraint(Sketcher.Constraint("Vertical", 14))
sketch18.addConstraint(Sketcher.Constraint("Horizontal", 15))
sketch18.addConstraint(Sketcher.Constraint("Horizontal", 17))
sketch18.addConstraint(Sketcher.Constraint("Vertical", 18))
sketch18.addConstraint(Sketcher.Constraint("Horizontal", 19))
sketch18.addConstraint(Sketcher.Constraint("Vertical", 20))
sketch18.addConstraint(Sketcher.Constraint("Horizontal", 21))
sketch18.addConstraint(Sketcher.Constraint("Horizontal", 5, 2, 10, 2))
sketch18.addConstraint(Sketcher.Constraint("Horizontal", 9, 2, 14, 2))
sketch18.addConstraint(Sketcher.Constraint("Horizontal", 7, 2, 16, 2))
sketch18.addConstraint(Sketcher.Constraint("Horizontal", 11, 2, 18, 2))
sketch18.addConstraint(Sketcher.Constraint("Horizontal", 3, 2, 20, 2))
sketch18.addConstraint(Sketcher.Constraint("Vertical", 16, 2, 19, 2))
sketch18.addConstraint(Sketcher.Constraint("Equal", 3, 21))
sketch18.addConstraint(Sketcher.Constraint("Equal", 4, 6))
sketch18.addConstraint(Sketcher.Constraint("Equal", 2, 10))
sketch18.addConstraint(Sketcher.Constraint("DistanceX", 1, 2, 1, 1, Q("1.3 in")))
sketch18.addConstraint(Sketcher.Constraint("DistanceX", 3, 1, 3, 2, Q("0.2 in")))
sketch18.addConstraint(Sketcher.Constraint("DistanceX", 9, 2, 9, 1, Q("0.3 in")))
sketch18.addConstraint(Sketcher.Constraint("DistanceX", 15, 2, 15, 1, Q("0.5 in")))
sketch18.addConstraint(Sketcher.Constraint("DistanceY", 12, 2, 12, 1, Q("1.5 in")))
sketch18.addConstraint(Sketcher.Constraint("DistanceY", 13, 2, 0, 2, Q("2 in")))
sketch18.addConstraint(Sketcher.Constraint("DistanceY", 8, 2, 8, 1, Q("0.25 in")))
sketch18.addConstraint(Sketcher.Constraint("DistanceX", 8, 2, 13, 2, Q("1.4 in")))
sketch18.addConstraint(Sketcher.Constraint("DistanceX", 5, 2, 5, 1, Q("0.188 in")))
sketch18.addConstraint(Sketcher.Constraint("DistanceX", 7, 1, 7, 2, Q("0.1875 in")))
sketch18.addConstraint(Sketcher.Constraint("DistanceX", 11, 2, 11, 1, Q("0.207 in")))
sketch18.addConstraint(Sketcher.Constraint("DistanceX", 17, 1, 17, 2, Q("0.187 in")))
sketch18.addConstraint(Sketcher.Constraint("DistanceY", -1, 1, 0, 2, Q("3.25 in")))
sketch18.addConstraint(Sketcher.Constraint("DistanceX", -1, 1, 7, 2, Q("0.225 in")))
pad7 = body5.newObject("PartDesign::Pad", "Pad006")
pad7.Profile = sketch18
pad7.Length = Q("0.1875 in")

doc.recompute()
